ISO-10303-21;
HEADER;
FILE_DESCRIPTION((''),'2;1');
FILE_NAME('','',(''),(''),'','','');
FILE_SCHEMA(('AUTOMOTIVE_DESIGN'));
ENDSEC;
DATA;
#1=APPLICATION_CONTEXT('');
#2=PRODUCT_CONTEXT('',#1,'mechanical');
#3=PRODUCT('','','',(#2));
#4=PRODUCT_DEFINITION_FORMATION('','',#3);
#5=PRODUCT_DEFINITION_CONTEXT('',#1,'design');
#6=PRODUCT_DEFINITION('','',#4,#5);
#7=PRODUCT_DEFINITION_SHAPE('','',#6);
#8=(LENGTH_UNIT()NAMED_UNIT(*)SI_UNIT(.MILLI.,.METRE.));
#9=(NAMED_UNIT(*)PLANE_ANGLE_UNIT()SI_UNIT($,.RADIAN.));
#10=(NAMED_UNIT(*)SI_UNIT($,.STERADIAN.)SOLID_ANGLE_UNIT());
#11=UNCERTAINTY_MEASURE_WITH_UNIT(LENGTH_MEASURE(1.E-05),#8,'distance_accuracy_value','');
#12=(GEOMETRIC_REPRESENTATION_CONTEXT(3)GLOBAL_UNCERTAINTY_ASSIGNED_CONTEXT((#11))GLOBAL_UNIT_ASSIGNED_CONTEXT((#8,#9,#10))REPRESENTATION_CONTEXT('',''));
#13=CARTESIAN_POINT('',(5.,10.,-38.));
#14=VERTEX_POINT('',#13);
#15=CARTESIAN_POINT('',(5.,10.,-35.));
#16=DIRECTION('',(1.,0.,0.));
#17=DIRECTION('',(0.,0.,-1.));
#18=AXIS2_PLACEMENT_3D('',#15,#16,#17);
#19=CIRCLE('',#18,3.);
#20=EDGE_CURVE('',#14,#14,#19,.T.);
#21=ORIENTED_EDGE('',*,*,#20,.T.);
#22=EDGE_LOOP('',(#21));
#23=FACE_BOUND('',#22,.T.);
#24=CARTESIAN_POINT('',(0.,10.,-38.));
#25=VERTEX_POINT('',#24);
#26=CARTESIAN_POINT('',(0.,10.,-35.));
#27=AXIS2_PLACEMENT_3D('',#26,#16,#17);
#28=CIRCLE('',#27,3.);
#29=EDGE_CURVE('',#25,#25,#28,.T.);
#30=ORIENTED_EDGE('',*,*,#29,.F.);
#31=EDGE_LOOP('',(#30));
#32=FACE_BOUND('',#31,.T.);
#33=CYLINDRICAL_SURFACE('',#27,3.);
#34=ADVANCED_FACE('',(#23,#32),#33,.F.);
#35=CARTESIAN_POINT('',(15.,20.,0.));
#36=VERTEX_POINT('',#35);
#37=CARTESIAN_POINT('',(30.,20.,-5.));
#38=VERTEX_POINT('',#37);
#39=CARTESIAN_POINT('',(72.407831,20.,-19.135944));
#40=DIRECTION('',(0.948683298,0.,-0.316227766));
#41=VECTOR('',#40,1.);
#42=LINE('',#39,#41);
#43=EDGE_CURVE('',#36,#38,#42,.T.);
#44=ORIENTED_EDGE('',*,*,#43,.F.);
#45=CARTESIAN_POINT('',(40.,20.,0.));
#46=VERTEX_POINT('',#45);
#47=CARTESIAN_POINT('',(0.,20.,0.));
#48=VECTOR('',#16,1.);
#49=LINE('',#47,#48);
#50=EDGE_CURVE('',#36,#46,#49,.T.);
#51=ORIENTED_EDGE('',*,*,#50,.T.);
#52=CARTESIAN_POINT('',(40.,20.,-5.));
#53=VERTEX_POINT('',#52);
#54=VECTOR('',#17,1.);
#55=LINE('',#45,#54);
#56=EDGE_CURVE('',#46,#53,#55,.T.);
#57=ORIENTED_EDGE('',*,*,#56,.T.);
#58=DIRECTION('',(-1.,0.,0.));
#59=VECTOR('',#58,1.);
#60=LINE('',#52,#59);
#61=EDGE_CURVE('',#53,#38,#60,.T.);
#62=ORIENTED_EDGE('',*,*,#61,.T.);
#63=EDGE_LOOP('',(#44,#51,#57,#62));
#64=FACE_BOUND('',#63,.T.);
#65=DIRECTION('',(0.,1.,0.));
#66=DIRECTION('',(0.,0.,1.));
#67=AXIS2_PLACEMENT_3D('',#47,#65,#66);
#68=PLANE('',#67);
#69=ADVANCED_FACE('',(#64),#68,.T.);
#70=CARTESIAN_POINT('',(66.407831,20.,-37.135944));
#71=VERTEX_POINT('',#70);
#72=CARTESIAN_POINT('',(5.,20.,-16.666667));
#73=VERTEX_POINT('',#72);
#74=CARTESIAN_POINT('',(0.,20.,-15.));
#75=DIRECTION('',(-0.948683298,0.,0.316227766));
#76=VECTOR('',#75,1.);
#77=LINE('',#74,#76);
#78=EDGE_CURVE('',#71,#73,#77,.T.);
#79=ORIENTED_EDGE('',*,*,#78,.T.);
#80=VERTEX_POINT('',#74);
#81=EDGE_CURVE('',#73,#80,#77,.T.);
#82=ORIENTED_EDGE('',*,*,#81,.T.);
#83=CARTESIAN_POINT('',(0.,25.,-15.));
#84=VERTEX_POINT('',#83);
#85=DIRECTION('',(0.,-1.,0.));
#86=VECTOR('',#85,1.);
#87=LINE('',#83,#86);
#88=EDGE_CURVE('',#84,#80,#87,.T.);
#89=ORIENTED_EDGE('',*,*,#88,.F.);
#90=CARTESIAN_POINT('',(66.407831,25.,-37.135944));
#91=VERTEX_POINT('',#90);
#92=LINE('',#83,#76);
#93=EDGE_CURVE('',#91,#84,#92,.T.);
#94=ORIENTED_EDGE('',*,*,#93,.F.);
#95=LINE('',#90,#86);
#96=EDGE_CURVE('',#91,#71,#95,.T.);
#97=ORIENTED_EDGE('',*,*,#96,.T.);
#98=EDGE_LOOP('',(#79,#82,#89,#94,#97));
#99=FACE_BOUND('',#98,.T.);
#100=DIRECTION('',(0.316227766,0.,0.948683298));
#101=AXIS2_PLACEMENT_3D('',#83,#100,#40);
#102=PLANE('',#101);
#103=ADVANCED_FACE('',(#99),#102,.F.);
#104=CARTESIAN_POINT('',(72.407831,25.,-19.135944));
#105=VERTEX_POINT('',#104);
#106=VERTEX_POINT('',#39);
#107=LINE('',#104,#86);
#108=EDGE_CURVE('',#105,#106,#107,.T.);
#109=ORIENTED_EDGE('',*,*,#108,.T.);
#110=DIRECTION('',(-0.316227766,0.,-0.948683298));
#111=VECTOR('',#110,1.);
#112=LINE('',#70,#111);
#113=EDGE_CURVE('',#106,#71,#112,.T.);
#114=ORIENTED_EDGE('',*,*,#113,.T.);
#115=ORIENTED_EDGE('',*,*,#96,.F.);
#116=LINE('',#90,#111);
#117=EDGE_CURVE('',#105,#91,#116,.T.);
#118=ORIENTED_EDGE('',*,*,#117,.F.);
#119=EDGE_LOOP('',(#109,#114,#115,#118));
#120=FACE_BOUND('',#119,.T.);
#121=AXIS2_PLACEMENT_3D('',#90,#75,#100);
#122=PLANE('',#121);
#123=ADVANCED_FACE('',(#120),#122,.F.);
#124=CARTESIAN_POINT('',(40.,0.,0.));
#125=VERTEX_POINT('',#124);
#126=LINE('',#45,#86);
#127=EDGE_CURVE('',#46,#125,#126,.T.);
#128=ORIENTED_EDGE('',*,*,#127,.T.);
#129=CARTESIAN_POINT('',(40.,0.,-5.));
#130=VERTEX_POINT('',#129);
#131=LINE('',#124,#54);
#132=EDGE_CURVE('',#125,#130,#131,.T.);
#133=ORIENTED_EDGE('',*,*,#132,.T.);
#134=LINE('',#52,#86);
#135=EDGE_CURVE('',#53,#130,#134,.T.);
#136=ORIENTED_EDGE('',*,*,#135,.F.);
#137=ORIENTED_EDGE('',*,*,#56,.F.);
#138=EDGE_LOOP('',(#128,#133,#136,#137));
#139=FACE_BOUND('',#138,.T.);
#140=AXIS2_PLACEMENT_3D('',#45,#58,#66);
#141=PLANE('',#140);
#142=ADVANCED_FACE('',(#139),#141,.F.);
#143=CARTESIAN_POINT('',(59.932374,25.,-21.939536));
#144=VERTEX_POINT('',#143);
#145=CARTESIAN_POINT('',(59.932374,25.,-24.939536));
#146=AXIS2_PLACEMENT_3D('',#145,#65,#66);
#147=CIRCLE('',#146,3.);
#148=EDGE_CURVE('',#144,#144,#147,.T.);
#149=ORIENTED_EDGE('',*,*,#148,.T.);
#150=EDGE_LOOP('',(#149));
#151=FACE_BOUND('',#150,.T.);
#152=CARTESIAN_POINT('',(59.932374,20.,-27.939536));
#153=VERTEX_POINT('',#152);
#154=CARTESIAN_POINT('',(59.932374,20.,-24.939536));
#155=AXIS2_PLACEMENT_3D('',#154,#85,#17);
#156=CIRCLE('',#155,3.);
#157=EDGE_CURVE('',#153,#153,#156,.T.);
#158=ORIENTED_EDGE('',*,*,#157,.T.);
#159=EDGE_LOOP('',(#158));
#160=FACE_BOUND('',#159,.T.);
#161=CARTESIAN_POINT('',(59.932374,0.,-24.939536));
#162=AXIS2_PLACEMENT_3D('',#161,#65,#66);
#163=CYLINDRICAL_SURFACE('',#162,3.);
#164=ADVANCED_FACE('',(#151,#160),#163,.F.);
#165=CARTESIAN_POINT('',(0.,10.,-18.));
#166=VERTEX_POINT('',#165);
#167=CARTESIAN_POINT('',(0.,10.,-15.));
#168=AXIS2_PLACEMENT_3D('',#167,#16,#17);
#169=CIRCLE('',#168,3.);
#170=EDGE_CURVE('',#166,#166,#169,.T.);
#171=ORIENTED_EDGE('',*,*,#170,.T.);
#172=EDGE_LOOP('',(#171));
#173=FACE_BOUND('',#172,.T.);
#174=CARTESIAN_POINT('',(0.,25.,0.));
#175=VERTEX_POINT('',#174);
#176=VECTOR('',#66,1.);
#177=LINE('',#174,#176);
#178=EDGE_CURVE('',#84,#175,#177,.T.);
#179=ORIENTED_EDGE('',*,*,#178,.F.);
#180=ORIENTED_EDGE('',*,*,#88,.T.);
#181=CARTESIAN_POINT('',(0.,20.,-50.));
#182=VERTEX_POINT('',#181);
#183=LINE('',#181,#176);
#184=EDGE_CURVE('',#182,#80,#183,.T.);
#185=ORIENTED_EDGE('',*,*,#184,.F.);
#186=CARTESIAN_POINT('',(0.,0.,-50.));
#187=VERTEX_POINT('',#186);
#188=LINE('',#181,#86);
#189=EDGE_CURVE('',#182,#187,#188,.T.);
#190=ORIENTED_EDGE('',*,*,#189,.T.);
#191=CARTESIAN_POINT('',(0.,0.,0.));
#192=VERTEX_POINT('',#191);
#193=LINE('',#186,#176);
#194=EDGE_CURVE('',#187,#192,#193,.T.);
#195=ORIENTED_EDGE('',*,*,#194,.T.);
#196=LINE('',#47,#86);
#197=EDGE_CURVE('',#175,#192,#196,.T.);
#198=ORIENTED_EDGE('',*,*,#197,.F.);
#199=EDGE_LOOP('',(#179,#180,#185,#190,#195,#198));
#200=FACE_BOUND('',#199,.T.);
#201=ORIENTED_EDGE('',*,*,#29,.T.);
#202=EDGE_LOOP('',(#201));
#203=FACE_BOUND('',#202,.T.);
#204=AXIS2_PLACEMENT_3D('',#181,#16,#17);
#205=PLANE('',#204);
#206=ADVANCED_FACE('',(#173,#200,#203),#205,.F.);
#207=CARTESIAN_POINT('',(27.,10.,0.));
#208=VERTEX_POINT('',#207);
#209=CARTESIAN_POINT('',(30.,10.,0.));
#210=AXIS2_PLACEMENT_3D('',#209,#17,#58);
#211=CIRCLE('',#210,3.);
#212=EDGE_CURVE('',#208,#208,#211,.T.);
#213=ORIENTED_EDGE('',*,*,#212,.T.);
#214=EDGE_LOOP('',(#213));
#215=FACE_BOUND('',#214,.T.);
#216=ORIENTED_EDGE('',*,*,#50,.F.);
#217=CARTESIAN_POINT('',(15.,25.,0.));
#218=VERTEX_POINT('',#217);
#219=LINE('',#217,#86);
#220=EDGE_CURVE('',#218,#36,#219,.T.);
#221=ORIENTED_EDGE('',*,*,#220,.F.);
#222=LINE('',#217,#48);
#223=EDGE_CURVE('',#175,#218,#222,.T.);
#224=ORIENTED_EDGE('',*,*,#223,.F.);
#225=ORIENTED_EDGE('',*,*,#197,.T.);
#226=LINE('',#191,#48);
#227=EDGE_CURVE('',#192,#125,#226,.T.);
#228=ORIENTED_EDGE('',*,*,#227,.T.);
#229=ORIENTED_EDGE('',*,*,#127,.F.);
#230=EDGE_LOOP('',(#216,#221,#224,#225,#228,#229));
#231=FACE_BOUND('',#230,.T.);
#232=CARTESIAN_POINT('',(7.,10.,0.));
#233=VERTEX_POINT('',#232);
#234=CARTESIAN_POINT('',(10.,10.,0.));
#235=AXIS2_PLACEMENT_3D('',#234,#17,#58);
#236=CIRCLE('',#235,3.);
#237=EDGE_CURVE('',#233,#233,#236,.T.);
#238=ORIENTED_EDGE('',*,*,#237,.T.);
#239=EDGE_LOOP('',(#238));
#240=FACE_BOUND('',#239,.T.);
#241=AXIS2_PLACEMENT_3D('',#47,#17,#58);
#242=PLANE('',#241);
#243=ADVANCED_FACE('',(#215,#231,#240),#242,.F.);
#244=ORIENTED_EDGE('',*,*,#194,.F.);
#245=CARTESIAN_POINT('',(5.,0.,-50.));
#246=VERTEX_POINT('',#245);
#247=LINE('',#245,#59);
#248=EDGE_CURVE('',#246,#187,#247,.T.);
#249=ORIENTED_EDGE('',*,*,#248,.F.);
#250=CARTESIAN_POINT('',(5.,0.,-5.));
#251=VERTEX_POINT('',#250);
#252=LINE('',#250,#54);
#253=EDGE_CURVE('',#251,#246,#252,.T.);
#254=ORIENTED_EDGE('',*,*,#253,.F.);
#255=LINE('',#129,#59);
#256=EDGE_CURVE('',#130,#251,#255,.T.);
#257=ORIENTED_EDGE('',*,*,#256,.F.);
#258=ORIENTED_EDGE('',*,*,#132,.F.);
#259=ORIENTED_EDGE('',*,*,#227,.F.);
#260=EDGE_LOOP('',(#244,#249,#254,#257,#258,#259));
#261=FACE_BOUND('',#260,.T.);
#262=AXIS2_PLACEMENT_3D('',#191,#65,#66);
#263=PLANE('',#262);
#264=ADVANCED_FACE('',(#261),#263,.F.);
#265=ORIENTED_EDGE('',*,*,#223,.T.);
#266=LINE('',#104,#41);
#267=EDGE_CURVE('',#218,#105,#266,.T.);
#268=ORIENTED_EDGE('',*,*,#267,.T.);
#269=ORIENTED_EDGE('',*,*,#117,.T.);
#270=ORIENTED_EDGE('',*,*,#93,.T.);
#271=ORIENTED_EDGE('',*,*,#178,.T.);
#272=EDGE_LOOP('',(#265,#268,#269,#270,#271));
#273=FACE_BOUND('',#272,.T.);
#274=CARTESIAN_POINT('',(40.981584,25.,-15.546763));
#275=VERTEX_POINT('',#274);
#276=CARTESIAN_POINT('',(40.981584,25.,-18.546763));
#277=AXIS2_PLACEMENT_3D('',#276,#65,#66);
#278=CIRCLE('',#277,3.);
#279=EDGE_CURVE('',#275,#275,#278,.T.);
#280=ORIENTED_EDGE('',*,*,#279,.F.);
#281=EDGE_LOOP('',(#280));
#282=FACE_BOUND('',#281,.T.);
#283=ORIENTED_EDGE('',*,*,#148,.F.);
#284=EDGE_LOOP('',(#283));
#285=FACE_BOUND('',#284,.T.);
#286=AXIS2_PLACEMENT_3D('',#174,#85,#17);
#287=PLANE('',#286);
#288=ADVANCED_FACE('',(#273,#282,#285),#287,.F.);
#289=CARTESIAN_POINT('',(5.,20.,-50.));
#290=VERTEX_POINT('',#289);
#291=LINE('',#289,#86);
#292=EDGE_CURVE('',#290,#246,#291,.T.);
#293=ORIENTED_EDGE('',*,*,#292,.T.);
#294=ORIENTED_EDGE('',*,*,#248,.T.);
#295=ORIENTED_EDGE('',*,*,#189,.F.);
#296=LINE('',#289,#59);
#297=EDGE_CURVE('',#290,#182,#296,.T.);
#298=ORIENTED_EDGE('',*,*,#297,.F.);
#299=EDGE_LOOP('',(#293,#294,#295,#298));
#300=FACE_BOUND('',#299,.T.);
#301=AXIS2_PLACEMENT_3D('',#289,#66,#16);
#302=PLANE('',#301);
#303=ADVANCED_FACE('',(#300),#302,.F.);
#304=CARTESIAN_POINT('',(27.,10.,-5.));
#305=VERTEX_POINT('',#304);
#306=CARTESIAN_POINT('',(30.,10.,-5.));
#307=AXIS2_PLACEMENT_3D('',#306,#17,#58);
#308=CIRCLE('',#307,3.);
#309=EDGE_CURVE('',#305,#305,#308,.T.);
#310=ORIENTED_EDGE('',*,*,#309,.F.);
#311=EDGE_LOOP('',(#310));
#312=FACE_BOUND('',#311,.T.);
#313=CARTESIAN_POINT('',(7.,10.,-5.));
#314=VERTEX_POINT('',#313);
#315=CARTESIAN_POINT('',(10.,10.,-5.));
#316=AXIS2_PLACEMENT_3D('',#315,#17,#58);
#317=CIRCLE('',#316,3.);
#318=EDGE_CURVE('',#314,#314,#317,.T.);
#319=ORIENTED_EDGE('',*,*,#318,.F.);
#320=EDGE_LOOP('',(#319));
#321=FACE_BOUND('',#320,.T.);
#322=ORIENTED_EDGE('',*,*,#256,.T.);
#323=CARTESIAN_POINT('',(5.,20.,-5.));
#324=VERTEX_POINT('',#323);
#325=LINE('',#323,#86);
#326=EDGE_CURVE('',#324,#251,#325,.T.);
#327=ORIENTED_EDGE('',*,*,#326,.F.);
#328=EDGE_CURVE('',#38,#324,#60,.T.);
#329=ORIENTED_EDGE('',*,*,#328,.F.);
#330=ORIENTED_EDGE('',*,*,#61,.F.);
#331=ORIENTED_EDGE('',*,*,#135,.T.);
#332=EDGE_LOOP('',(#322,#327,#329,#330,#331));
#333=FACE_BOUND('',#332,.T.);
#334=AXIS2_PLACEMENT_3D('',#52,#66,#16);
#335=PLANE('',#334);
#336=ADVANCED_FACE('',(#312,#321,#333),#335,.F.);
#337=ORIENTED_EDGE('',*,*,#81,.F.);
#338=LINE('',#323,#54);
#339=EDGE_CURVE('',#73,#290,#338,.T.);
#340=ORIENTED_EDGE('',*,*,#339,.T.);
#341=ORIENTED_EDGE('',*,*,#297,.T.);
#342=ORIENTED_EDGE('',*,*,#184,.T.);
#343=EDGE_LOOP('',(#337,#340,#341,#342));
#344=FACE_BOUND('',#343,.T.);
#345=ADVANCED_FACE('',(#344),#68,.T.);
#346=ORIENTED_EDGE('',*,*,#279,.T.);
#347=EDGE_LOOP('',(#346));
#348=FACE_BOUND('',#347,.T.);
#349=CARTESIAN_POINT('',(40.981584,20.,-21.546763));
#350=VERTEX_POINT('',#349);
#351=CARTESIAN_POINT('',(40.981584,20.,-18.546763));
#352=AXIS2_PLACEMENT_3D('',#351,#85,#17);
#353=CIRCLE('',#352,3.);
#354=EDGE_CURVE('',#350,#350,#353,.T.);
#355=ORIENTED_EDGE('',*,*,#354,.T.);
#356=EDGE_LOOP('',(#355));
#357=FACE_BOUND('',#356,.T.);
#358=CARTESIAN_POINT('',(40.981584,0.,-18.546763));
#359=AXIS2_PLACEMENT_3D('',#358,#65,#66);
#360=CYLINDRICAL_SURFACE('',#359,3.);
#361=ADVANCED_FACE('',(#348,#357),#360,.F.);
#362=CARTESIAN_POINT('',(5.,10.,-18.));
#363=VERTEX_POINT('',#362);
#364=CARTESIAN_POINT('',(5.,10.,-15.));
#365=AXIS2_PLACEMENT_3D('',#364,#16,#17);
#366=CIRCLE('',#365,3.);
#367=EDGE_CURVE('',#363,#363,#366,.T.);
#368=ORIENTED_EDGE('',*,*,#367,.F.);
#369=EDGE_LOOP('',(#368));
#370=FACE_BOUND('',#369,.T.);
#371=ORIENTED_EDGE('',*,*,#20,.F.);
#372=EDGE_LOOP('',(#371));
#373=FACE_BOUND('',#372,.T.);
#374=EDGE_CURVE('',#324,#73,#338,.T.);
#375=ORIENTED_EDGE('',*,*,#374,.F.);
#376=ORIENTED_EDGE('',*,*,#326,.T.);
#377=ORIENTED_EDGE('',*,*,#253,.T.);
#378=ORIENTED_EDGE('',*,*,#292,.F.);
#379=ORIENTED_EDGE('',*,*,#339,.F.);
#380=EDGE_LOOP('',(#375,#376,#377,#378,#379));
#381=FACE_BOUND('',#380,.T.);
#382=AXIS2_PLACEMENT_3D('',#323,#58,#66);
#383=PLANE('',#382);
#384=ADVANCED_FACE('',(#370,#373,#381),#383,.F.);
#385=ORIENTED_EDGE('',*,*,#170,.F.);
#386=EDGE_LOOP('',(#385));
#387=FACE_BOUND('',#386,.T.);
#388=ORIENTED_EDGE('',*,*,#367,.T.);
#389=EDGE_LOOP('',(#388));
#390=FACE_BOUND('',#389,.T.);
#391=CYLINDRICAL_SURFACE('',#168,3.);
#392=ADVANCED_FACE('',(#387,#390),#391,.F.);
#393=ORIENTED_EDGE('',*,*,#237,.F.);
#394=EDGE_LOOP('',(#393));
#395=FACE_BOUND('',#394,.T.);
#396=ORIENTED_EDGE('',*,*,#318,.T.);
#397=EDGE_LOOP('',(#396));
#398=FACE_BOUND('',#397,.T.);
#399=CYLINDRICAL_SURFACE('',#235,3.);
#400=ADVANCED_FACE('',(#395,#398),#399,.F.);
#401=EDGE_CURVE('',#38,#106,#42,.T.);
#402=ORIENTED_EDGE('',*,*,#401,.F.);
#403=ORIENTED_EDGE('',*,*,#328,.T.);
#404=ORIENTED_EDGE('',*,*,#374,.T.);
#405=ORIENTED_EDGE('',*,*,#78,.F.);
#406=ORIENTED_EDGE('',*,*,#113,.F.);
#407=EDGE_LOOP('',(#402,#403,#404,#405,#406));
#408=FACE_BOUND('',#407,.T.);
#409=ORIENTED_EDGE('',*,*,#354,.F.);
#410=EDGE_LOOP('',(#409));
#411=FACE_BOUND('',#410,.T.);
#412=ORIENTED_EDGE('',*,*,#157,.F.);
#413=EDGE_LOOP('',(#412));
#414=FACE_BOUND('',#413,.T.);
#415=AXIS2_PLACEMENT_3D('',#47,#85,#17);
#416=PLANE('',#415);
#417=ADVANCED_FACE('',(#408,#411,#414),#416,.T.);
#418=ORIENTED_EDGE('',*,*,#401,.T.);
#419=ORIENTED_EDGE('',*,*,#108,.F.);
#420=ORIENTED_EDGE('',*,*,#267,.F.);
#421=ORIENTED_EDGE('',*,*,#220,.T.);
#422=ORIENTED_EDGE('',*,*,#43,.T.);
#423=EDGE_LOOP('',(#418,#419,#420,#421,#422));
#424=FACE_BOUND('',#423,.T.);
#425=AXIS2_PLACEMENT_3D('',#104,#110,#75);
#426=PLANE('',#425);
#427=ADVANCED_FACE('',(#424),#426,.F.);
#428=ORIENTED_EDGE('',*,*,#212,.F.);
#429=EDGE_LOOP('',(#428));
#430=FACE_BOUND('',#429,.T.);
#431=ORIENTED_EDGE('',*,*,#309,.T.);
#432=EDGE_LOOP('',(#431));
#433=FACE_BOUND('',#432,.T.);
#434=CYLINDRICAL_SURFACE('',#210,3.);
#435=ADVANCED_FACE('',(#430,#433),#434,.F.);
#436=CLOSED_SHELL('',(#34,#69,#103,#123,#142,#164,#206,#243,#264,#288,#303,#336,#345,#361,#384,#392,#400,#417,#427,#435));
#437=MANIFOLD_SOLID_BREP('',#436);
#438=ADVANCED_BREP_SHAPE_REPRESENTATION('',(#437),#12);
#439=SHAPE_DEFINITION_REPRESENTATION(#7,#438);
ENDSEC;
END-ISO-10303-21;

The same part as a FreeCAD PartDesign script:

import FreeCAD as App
import Part
import Sketcher

V = App.Vector

doc = App.newDocument("Part")
body = doc.addObject("PartDesign::Body", "Body")

# Sketch on XZ plane
sketch1 = body.newObject("Sketcher::SketchObject", "Sketch")
sketch1.AttachmentSupport = (doc.getObject("XZ_Plane"), [""])
sketch1.MapMode = "FlatFace"
sketch1.addGeometry([
    Part.LineSegment(V(0, -50, 0), V(0, 0, 0)),  # 0
    Part.LineSegment(V(0, 0, 0), V(40, 0, 0)),  # 1
    Part.LineSegment(V(40, 0, 0), V(40, -5, 0)),  # 2
    Part.LineSegment(V(40, -5, 0), V(5, -5, 0)),  # 3
    Part.LineSegment(V(5, -5, 0), V(5, -50, 0)),  # 4
    Part.LineSegment(V(5, -50, 0), V(0, -50, 0)),  # 5
], False)
sketch1.addConstraint([
    Sketcher.Constraint("Coincident", 0, 2, 1, 1),
    Sketcher.Constraint("Coincident", 1, 2, 2, 1),
    Sketcher.Constraint("Coincident", 2, 2, 3, 1),
    Sketcher.Constraint("Coincident", 3, 2, 4, 1),
    Sketcher.Constraint("Coincident", 4, 2, 5, 1),
    Sketcher.Constraint("Coincident", 5, 2, 0, 1),
    Sketcher.Constraint("Vertical", 0),
    Sketcher.Constraint("Horizontal", 1),
    Sketcher.Constraint("Vertical", 2),
    Sketcher.Constraint("Horizontal", 3),
    Sketcher.Constraint("Vertical", 4),
    Sketcher.Constraint("Horizontal", 5),
    Sketcher.Constraint("Coincident", 0, 2, -1, 1),
    Sketcher.Constraint("Equal", 5, 2),
    Sketcher.Constraint("DistanceX", 1, 1, 1, 2, 40.0),
    Sketcher.Constraint("DistanceX", 3, 2, 3, 1, 35.0),
    Sketcher.Constraint("DistanceY", 0, 1, 0, 2, 50.0),
])
pad1 = body.newObject("PartDesign::Pad", "Pad")
pad1.Profile = sketch1
pad1.Length = 20
pad1.Reversed = True

# Sketch on XZ plane
sketch2 = body.newObject("Sketcher::SketchObject", "Sketch001")
sketch2.AttachmentSupport = (doc.getObject("XZ_Plane"), [""])
sketch2.MapMode = "FlatFace"
sketch2.AttachmentOffset = App.Placement(V(0, 0, -20), App.Rotation())
sketch2.addGeometry([
    Part.LineSegment(V(0, -15, 0), V(0, 0, 0)),  # 0
    Part.LineSegment(V(0, 0, 0), V(15, 0, 0)),  # 1
    Part.LineSegment(V(15, 0, 0), V(72, -19, 0)),  # 2
    Part.LineSegment(V(72, -19, 0), V(66, -37, 0)),  # 3
    Part.LineSegment(V(66, -37, 0), V(0, -15, 0)),  # 4
], False)
sketch2.addConstraint([
    Sketcher.Constraint("Coincident", 0, 2, 1, 1),
    Sketcher.Constraint("Coincident", 1, 2, 2, 1),
    Sketcher.Constraint("Coincident", 2, 2, 3, 1),
    Sketcher.Constraint("Coincident", 3, 2, 4, 1),
    Sketcher.Constraint("Coincident", 4, 2, 0, 1),
    Sketcher.Constraint("Vertical", 0),
    Sketcher.Constraint("Horizontal", 1),
    Sketcher.Constraint("Coincident", 0, 2, -1, 1),
    Sketcher.Constraint("Perpendicular", 2, 3),
    Sketcher.Constraint("Perpendicular", 3, 4),
    Sketcher.Constraint("Equal", 1, 0),
    Sketcher.Constraint("DistanceX", 1, 1, 1, 2, 15.0),
    Sketcher.Constraint("Distance", 4, 70.0),
    Sketcher.Constraint("DistanceX", 3, 2, 2, 2, 6.0),
])
pad2 = body.newObject("PartDesign::Pad", "Pad001")
pad2.Profile = sketch2
pad2.Length = 5
pad2.Reversed = True

# Sketch on XY plane
sketch3 = body.newObject("Sketcher::SketchObject", "Sketch002")
sketch3.AttachmentSupport = (doc.getObject("XY_Plane"), [""])
sketch3.MapMode = "FlatFace"
sketch3.AttachmentOffset = App.Placement(V(0, 0, -5), App.Rotation())
sketch3.addGeometry([
    Part.Circle(V(10, 10, 0), V(0, 0, 1), 3),
    Part.Circle(V(30, 10, 0), V(0, 0, 1), 3),
], False)
sketch3.addConstraint([
    Sketcher.Constraint("Equal", 0, 1),
    Sketcher.Constraint("Horizontal", 0, 3, 1, 3),
    Sketcher.Constraint("Diameter", 0, 6.0),
    Sketcher.Constraint("DistanceX", -1, 1, 0, 3, 10.0),
    Sketcher.Constraint("DistanceY", -1, 1, 0, 3, 10.0),
    Sketcher.Constraint("DistanceX", -1, 1, 1, 3, 30.0),
])
pocket1 = body.newObject("PartDesign::Pocket", "Pocket")
pocket1.Profile = sketch3
pocket1.Type = "ThroughAll"
pocket1.Reversed = True

# Sketch on YZ plane
sketch4 = body.newObject("Sketcher::SketchObject", "Sketch003")
sketch4.AttachmentSupport = (doc.getObject("YZ_Plane"), [""])
sketch4.MapMode = "FlatFace"
sketch4.AttachmentOffset = App.Placement(V(0, 0, 5), App.Rotation())
sketch4.addGeometry([
    Part.Circle(V(10, -15, 0), V(0, 0, 1), 3),
    Part.Circle(V(10, -35, 0), V(0, 0, 1), 3),
], False)
sketch4.addConstraint([
    Sketcher.Constraint("Equal", 0, 1),
    Sketcher.Constraint("Vertical", 0, 3, 1, 3),
    Sketcher.Constraint("Diameter", 0, 6.0),
    Sketcher.Constraint("DistanceX", -1, 1, 0, 3, 10.0),
    Sketcher.Constraint("DistanceY", 0, 3, -1, 1, 15.0),
    Sketcher.Constraint("DistanceY", 1, 3, -1, 1, 35.0),
])
pocket2 = body.newObject("PartDesign::Pocket", "Pocket001")
pocket2.Profile = sketch4
pocket2.Type = "ThroughAll"

# Sketch on XZ plane
sketch5 = body.newObject("Sketcher::SketchObject", "Sketch004")
sketch5.AttachmentSupport = (doc.getObject("XZ_Plane"), [""])
sketch5.MapMode = "FlatFace"
sketch5.AttachmentOffset = App.Placement(V(0, 0, -25), App.Rotation())
sketch5.addGeometry([
    Part.Circle(V(59.9, -24.9, 0), V(0, 0, 1), 3),
    Part.Circle(V(41, -18.5, 0), V(0, 0, 1), 3),
], False)
sketch5.addConstraint([
    Sketcher.Constraint("Equal", 0, 1),
    Sketcher.Constraint("Diameter", 0, 6.0),
    Sketcher.Constraint("DistanceX", 1, 3, 0, 3, 18.95079),
    Sketcher.Constraint("DistanceX", -1, 1, 0, 3, 59.932374),
    Sketcher.Constraint("DistanceY", 0, 3, -1, 1, 24.939536),
    Sketcher.Constraint("DistanceY", 1, 3, -1, 1, 18.546763),
])
pocket3 = body.newObject("PartDesign::Pocket", "Pocket002")
pocket3.Profile = sketch5
pocket3.Type = "ThroughAll"
pocket3.Reversed = True

doc.recompute()
